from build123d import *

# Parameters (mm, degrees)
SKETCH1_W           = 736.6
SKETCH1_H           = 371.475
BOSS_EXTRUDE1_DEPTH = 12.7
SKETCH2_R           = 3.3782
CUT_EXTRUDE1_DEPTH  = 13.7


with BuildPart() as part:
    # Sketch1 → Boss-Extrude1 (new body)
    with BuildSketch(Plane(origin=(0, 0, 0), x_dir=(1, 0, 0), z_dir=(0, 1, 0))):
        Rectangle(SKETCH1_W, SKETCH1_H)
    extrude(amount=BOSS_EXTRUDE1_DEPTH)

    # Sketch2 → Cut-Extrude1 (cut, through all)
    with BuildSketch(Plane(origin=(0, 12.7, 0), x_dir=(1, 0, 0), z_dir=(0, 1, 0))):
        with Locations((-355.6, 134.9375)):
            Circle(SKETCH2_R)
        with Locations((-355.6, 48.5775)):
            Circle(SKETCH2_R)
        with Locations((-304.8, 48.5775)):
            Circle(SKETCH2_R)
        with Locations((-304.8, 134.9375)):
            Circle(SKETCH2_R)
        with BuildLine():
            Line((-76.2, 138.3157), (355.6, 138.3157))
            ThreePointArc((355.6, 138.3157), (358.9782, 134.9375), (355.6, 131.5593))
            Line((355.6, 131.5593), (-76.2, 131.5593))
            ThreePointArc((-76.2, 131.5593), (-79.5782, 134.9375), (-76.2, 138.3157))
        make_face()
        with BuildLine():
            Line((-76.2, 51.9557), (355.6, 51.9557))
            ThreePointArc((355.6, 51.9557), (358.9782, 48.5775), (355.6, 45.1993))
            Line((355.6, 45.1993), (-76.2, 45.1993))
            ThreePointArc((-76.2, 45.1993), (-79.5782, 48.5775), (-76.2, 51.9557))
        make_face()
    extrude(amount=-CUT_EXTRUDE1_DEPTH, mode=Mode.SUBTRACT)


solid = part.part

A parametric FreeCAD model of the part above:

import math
import FreeCAD as App
import Part
import Sketcher
Q = App.Units.Quantity


def add_polygon(sketch, points):
    """Adds a closed chain of lines whose ends are joined by coincident constraints."""
    first, n = sketch.GeometryCount, len(points)
    for a, b in zip(points, points[1:] + points[:1]):
        sketch.addGeometry(Part.LineSegment(App.Vector(*a, 0), App.Vector(*b, 0)), False)
    for i in range(n):
        sketch.addConstraint(Sketcher.Constraint("Coincident", first + i, 2, first + (i + 1) % n, 1))

doc = App.newDocument("Part")
body = doc.addObject("PartDesign::Body", "Body")

# Sketch on XZ plane
sketch1 = body.newObject("Sketcher::SketchObject", "Sketch")
sketch1.AttachmentSupport = (doc.getObject("XZ_Plane"), [""])
sketch1.MapMode = "FlatFace"
add_polygon(sketch1, [(-368, -186), (-368, 186), (368, 186), (368, -186)])  # lines 0-3
sketch1.addConstraint(Sketcher.Constraint("Vertical", 0))
sketch1.addConstraint(Sketcher.Constraint("Horizontal", 1))
sketch1.addConstraint(Sketcher.Constraint("Vertical", 2))
sketch1.addConstraint(Sketcher.Constraint("Horizontal", 3))
sketch1.addConstraint(Sketcher.Constraint("Symmetric", 0, 2, 2, 2, -1, 1))
sketch1.addConstraint(Sketcher.Constraint("DistanceX", 1, 1, 1, 2, Q("29 in")))
sketch1.addConstraint(Sketcher.Constraint("DistanceY", 0, 1, 0, 2, Q("14.625 in")))
pad1 = body.newObject("PartDesign::Pad", "Pad")
pad1.Profile = sketch1
pad1.Length = Q("0.5 in")
pad1.Reversed = True

# Sketch on XZ plane
sketch2 = body.newObject("Sketcher::SketchObject", "Sketch001")
sketch2.AttachmentSupport = (doc.getObject("XZ_Plane"), [""])
sketch2.MapMode = "FlatFace"
sketch2.AttachmentOffset = App.Placement(App.Vector(0, 0, -0.5 * 25.4), App.Rotation())
sketch2.addGeometry(Part.Circle(App.Vector(-355.6, -134.9, 0), App.Vector(0, 0, 1), 3.4), False)
sketch2.addGeometry(Part.Circle(App.Vector(-355.6, -48.6, 0), App.Vector(0, 0, 1), 3.4), False)
sketch2.addGeometry(Part.Circle(App.Vector(-304.8, -48.6, 0), App.Vector(0, 0, 1), 3.4), False)
sketch2.addGeometry(Part.Circle(App.Vector(-304.8, -134.9, 0), App.Vector(0, 0, 1), 3.4), False)
sketch2.addGeometry(Part.LineSegment(App.Vector(355.6, -138.3, 0), App.Vector(-76.2, -138.3, 0)), False)
sketch2.addGeometry(Part.ArcOfCircle(Part.Circle(App.Vector(-76.2, -134.9, 0), App.Vector(0, 0, 1), 3.4), math.radians(90), math.radians(270)), False)
sketch2.addGeometry(Part.LineSegment(App.Vector(-76.2, -131.6, 0), App.Vector(355.6, -131.6, 0)), False)
sketch2.addGeometry(Part.ArcOfCircle(Part.Circle(App.Vector(355.6, -134.9, 0), App.Vector(0, 0, 1), 3.4), math.radians(-90), math.radians(90)), False)
sketch2.addGeometry(Part.LineSegment(App.Vector(355.6, -52, 0), App.Vector(-76.2, -52, 0)), False)
sketch2.addGeometry(Part.ArcOfCircle(Part.Circle(App.Vector(-76.2, -48.6, 0), App.Vector(0, 0, 1), 3.4), math.radians(90), math.radians(270)), False)
sketch2.addGeometry(Part.LineSegment(App.Vector(-76.2, -45.2, 0), App.Vector(355.6, -45.2, 0)), False)
sketch2.addGeometry(Part.ArcOfCircle(Part.Circle(App.Vector(355.6, -48.6, 0), App.Vector(0, 0, 1), 3.4), math.radians(-90), math.radians(90)), False)
sketch2.addConstraint(Sketcher.Constraint("Tangent", 4, 2, 5, 2))
sketch2.addConstraint(Sketcher.Constraint("Tangent", 5, 1, 6, 1))
sketch2.addConstraint(Sketcher.Constraint("Tangent", 6, 2, 7, 2))
sketch2.addConstraint(Sketcher.Constraint("Tangent", 7, 1, 4, 1))
sketch2.addConstraint(Sketcher.Constraint("Tangent", 8, 2, 9, 2))
sketch2.addConstraint(Sketcher.Constraint("Tangent", 9, 1, 10, 1))
sketch2.addConstraint(Sketcher.Constraint("Tangent", 10, 2, 11, 2))
sketch2.addConstraint(Sketcher.Constraint("Tangent", 11, 1, 8, 1))
sketch2.addConstraint(Sketcher.Constraint("Horizontal", 4))
sketch2.addConstraint(Sketcher.Constraint("Horizontal", 6))
sketch2.addConstraint(Sketcher.Constraint("Horizontal", 8))
sketch2.addConstraint(Sketcher.Constraint("Horizontal", 10))
sketch2.addConstraint(Sketcher.Constraint("Equal", 0, 1))
sketch2.addConstraint(Sketcher.Constraint("Equal", 1, 2))
sketch2.addConstraint(Sketcher.Constraint("Equal", 2, 3))
sketch2.addConstraint(Sketcher.Constraint("Equal", 3, 5))
sketch2.addConstraint(Sketcher.Constraint("Equal", 7, 9))
sketch2.addConstraint(Sketcher.Constraint("Symmetric", 0, 3, 7, 3, -2))
sketch2.addConstraint(Sketcher.Constraint("Symmetric", 1, 3, 11, 3, -2))
sketch2.addConstraint(Sketcher.Constraint("Horizontal", 1, 3, 2, 3))
sketch2.addConstraint(Sketcher.Constraint("Horizontal", 0, 3, 3, 3))
sketch2.addConstraint(Sketcher.Constraint("Vertical", 0, 3, 1, 3))
sketch2.addConstraint(Sketcher.Constraint("Vertical", 2, 3, 3, 3))
sketch2.addConstraint(Sketcher.Constraint("Vertical", 5, 3, 9, 3))
sketch2.addConstraint(Sketcher.Constraint("DistanceX", 4, 2, 4, 1, Q("17 in")))
sketch2.addConstraint(Sketcher.Constraint("Diameter", 0, Q("0.266 in")))
sketch2.addConstraint(Sketcher.Constraint("DistanceX", 0, 3, -1, 1, Q("14 in")))
sketch2.addConstraint(Sketcher.Constraint("DistanceX", 2, 3, -1, 1, Q("12 in")))
sketch2.addConstraint(Sketcher.Constraint("DistanceY", 0, 3, 1, 3, Q("3.4 in")))
sketch2.addConstraint(Sketcher.Constraint("DistanceY", 0, 3, -1, 1, Q("5.3125 in")))
pocket1 = body.newObject("PartDesign::Pocket", "Pocket")
pocket1.Profile = sketch2
pocket1.Type = "ThroughAll"
pocket1.Reversed = True

doc.recompute()
